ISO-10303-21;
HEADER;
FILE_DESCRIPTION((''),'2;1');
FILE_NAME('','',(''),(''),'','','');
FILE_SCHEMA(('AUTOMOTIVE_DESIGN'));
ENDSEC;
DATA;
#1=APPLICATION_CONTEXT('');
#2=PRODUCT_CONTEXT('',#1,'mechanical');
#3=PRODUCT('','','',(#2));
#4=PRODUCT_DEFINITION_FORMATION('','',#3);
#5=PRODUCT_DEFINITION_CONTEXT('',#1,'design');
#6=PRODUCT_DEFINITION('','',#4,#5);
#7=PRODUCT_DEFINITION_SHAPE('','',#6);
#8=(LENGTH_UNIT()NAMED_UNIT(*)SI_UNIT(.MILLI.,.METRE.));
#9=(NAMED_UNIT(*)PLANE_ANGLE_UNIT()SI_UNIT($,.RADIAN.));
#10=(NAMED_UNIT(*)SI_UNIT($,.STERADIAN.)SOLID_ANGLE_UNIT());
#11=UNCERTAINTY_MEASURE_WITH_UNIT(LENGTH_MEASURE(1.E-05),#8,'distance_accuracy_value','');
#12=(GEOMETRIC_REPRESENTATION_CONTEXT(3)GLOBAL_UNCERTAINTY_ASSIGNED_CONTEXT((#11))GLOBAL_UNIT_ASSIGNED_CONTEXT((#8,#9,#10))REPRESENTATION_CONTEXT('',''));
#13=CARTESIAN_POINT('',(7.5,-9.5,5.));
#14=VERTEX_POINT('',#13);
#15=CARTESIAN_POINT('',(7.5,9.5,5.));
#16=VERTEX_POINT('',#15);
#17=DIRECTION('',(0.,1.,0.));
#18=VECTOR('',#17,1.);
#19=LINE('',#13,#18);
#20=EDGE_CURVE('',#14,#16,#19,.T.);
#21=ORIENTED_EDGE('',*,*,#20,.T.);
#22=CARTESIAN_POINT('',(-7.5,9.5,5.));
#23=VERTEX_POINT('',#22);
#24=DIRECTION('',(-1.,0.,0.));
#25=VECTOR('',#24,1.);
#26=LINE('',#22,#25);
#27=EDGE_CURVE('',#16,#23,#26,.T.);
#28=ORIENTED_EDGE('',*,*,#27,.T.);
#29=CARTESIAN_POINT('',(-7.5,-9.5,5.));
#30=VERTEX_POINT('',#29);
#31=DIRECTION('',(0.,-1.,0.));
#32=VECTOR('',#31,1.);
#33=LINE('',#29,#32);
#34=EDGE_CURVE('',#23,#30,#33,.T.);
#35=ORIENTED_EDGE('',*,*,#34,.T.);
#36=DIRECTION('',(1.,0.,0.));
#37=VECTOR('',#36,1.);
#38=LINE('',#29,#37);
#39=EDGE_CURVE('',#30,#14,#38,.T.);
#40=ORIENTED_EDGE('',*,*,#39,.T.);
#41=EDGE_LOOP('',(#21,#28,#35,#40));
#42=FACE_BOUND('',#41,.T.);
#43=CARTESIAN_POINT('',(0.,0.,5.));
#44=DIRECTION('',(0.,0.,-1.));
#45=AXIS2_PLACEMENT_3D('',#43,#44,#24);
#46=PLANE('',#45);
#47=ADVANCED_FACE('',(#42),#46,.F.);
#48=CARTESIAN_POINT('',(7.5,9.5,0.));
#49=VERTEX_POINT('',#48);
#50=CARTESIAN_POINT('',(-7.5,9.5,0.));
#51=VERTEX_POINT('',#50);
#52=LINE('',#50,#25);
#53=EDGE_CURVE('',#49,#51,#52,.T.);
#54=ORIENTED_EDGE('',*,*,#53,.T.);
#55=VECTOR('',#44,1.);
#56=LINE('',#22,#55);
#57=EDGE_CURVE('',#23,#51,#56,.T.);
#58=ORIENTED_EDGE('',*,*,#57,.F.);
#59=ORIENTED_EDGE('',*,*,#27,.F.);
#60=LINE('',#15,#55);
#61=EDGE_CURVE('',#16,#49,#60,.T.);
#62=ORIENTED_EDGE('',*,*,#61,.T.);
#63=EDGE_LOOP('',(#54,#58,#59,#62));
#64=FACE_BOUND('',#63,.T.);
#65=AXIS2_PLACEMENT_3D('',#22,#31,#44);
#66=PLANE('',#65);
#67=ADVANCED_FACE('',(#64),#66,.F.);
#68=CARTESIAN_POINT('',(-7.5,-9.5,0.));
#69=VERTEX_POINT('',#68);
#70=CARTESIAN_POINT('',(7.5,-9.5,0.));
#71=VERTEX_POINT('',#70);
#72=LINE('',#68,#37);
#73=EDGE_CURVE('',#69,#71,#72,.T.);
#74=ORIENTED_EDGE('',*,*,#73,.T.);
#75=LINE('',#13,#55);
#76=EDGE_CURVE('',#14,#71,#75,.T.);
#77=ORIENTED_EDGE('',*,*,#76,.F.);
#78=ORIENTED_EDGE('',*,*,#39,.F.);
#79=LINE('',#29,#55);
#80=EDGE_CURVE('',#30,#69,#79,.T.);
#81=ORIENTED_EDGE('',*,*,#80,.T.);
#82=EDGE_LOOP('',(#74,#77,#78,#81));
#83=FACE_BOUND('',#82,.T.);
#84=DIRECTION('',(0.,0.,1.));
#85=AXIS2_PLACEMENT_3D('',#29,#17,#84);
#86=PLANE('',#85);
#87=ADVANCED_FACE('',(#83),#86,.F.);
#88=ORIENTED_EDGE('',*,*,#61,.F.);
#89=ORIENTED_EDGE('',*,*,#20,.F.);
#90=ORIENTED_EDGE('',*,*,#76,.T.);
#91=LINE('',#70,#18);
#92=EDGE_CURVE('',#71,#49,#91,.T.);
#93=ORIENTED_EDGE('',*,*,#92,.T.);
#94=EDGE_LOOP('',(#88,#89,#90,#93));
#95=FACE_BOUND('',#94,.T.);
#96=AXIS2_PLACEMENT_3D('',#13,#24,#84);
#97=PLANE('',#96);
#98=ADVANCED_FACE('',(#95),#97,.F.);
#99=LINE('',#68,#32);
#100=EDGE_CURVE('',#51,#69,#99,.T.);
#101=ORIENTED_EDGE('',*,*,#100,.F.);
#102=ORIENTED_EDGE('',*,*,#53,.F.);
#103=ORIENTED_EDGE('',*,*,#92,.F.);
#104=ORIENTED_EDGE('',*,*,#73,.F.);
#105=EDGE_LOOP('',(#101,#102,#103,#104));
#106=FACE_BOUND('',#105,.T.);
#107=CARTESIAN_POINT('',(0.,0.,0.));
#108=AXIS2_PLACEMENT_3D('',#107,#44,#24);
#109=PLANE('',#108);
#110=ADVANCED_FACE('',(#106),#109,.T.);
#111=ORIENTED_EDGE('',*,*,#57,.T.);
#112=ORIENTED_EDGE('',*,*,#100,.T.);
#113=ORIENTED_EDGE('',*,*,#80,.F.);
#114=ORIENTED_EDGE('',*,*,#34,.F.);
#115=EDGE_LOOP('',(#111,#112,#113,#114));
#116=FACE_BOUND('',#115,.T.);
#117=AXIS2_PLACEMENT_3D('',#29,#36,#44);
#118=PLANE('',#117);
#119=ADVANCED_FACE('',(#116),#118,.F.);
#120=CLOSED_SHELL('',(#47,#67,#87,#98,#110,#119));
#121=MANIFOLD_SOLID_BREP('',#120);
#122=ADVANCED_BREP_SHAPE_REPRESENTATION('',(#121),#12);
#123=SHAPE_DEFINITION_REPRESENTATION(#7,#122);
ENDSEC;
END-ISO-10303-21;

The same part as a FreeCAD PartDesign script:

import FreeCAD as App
import Part
import Sketcher
from FreeCAD import Vector
Q = App.Units.Quantity

doc = App.newDocument("Part")
body = doc.addObject("PartDesign::Body", "Body")

# Sketch on XY plane
sketch1 = body.newObject("Sketcher::SketchObject", "Sketch")
sketch1.AttachmentSupport = (doc.getObject("XY_Plane"), [""])
sketch1.MapMode = "FlatFace"
sketch1.addGeometry([
    Part.LineSegment(Vector(-8, 10, 0), Vector(-8, -10, 0)),
    Part.LineSegment(Vector(-8, -10, 0), Vector(8, -10, 0)),
    Part.LineSegment(Vector(8, -10, 0), Vector(8, 10, 0)),
    Part.LineSegment(Vector(8, 10, 0), Vector(-8, 10, 0)),
], False)
sketch1.addConstraint([
    Sketcher.Constraint("Coincident", 0, 2, 1, 1),
    Sketcher.Constraint("Coincident", 1, 2, 2, 1),
    Sketcher.Constraint("Coincident", 2, 2, 3, 1),
    Sketcher.Constraint("Coincident", 3, 2, 0, 1),
    Sketcher.Constraint("Vertical", 0),
    Sketcher.Constraint("Horizontal", 1),
    Sketcher.Constraint("Vertical", 2),
    Sketcher.Constraint("Horizontal", 3),
    Sketcher.Constraint("Symmetric", 0, 2, 2, 2, -1, 1),
    Sketcher.Constraint("DistanceX", 1, 1, 1, 2, Q("15 mm")),
    Sketcher.Constraint("DistanceY", 0, 2, 0, 1, Q("19 mm")),
])
pad1 = body.newObject("PartDesign::Pad", "Pad")
pad1.Profile = sketch1
pad1.Length = 5

doc.recompute()
